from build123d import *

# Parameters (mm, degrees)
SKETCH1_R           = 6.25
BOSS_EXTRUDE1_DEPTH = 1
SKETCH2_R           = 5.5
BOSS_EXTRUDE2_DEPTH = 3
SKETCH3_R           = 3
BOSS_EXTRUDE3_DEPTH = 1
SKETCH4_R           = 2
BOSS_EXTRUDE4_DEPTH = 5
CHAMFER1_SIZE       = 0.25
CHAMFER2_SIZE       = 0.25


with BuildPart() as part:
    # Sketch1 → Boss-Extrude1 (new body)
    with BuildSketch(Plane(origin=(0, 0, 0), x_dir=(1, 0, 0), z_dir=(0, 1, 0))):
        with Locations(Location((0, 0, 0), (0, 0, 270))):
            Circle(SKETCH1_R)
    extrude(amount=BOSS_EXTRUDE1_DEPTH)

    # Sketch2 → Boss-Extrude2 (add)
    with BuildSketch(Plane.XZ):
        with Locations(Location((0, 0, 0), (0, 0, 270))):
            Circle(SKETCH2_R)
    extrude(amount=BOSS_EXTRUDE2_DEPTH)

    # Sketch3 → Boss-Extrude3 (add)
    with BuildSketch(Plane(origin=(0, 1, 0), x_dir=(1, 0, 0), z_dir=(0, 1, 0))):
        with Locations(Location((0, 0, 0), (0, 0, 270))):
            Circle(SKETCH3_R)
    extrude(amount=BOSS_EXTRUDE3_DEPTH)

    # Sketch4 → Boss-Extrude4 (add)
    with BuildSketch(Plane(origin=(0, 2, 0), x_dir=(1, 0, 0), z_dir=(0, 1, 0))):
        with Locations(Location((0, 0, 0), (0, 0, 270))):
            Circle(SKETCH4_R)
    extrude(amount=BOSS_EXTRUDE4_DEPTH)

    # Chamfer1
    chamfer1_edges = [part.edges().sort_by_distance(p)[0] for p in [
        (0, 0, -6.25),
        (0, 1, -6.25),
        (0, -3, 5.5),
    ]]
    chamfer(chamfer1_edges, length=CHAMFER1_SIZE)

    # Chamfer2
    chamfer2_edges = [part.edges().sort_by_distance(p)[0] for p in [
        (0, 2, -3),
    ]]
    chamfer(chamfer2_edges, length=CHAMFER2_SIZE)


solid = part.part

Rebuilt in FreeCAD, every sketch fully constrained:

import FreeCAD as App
import Part
import Sketcher
Q = App.Units.Quantity


def edges_at(feature, points):
    """Names of the edges that pass closest to the given points."""
    edges = feature.Shape.Edges
    near = lambda p: min(range(len(edges)), key=lambda i: edges[i].distToShape(Part.Vertex(*p))[0])
    return sorted({f"Edge{near(p) + 1}" for p in points})

doc = App.newDocument("Part")
body = doc.addObject("PartDesign::Body", "Body")

# Sketch on XZ plane
sketch1 = body.newObject("Sketcher::SketchObject", "Sketch")
sketch1.AttachmentSupport = (doc.getObject("XZ_Plane"), [""])
sketch1.MapMode = "FlatFace"
sketch1.addGeometry(Part.Circle(App.Vector(0, 0, 0), App.Vector(0, 0, 1), 6), False)
sketch1.addConstraint(Sketcher.Constraint("Coincident", 0, 3, -1, 1))
sketch1.addConstraint(Sketcher.Constraint("Diameter", 0, Q("12.5 mm")))
pad1 = body.newObject("PartDesign::Pad", "Pad")
pad1.Profile = sketch1
pad1.Length = 1
pad1.Reversed = True

# Sketch on XZ plane
sketch2 = body.newObject("Sketcher::SketchObject", "Sketch001")
sketch2.AttachmentSupport = (doc.getObject("XZ_Plane"), [""])
sketch2.MapMode = "FlatFace"
sketch2.addGeometry(Part.Circle(App.Vector(0, 0, 0), App.Vector(0, 0, 1), 6), False)
sketch2.addConstraint(Sketcher.Constraint("Coincident", 0, 3, -1, 1))
sketch2.addConstraint(Sketcher.Constraint("Diameter", 0, Q("11 mm")))
pad2 = body.newObject("PartDesign::Pad", "Pad001")
pad2.Profile = sketch2
pad2.Length = 3

# Sketch on XZ plane
sketch3 = body.newObject("Sketcher::SketchObject", "Sketch002")
sketch3.AttachmentSupport = (doc.getObject("XZ_Plane"), [""])
sketch3.MapMode = "FlatFace"
sketch3.AttachmentOffset = App.Placement(App.Vector(0, 0, -1), App.Rotation())
sketch3.addGeometry(Part.Circle(App.Vector(0, 0, 0), App.Vector(0, 0, 1), 3), False)
sketch3.addConstraint(Sketcher.Constraint("Coincident", 0, 3, -1, 1))
sketch3.addConstraint(Sketcher.Constraint("Diameter", 0, Q("6 mm")))
pad3 = body.newObject("PartDesign::Pad", "Pad002")
pad3.Profile = sketch3
pad3.Length = 1
pad3.Reversed = True

# Sketch on XZ plane
sketch4 = body.newObject("Sketcher::SketchObject", "Sketch003")
sketch4.AttachmentSupport = (doc.getObject("XZ_Plane"), [""])
sketch4.MapMode = "FlatFace"
sketch4.AttachmentOffset = App.Placement(App.Vector(0, 0, -2), App.Rotation())
sketch4.addGeometry(Part.Circle(App.Vector(0, 0, 0), App.Vector(0, 0, 1), 2), False)
sketch4.addConstraint(Sketcher.Constraint("Coincident", 0, 3, -1, 1))
sketch4.addConstraint(Sketcher.Constraint("Diameter", 0, Q("4 mm")))
pad4 = body.newObject("PartDesign::Pad", "Pad003")
pad4.Profile = sketch4
pad4.Length = 5
pad4.Reversed = True
doc.recompute()

chamfer = body.newObject("PartDesign::Chamfer", "Chamfer")
chamfer.Base = (pad4, edges_at(pad4, [(0, 0, -6.25), (0, 1, -6.25), (0, -3, 5.5)]))
chamfer.Size = 0.25
doc.recompute()

chamfer2 = body.newObject("PartDesign::Chamfer", "Chamfer001")
chamfer2.Base = (chamfer, edges_at(chamfer, [(0, 2, -3)]))
chamfer2.Size = 0.25

doc.recompute()
